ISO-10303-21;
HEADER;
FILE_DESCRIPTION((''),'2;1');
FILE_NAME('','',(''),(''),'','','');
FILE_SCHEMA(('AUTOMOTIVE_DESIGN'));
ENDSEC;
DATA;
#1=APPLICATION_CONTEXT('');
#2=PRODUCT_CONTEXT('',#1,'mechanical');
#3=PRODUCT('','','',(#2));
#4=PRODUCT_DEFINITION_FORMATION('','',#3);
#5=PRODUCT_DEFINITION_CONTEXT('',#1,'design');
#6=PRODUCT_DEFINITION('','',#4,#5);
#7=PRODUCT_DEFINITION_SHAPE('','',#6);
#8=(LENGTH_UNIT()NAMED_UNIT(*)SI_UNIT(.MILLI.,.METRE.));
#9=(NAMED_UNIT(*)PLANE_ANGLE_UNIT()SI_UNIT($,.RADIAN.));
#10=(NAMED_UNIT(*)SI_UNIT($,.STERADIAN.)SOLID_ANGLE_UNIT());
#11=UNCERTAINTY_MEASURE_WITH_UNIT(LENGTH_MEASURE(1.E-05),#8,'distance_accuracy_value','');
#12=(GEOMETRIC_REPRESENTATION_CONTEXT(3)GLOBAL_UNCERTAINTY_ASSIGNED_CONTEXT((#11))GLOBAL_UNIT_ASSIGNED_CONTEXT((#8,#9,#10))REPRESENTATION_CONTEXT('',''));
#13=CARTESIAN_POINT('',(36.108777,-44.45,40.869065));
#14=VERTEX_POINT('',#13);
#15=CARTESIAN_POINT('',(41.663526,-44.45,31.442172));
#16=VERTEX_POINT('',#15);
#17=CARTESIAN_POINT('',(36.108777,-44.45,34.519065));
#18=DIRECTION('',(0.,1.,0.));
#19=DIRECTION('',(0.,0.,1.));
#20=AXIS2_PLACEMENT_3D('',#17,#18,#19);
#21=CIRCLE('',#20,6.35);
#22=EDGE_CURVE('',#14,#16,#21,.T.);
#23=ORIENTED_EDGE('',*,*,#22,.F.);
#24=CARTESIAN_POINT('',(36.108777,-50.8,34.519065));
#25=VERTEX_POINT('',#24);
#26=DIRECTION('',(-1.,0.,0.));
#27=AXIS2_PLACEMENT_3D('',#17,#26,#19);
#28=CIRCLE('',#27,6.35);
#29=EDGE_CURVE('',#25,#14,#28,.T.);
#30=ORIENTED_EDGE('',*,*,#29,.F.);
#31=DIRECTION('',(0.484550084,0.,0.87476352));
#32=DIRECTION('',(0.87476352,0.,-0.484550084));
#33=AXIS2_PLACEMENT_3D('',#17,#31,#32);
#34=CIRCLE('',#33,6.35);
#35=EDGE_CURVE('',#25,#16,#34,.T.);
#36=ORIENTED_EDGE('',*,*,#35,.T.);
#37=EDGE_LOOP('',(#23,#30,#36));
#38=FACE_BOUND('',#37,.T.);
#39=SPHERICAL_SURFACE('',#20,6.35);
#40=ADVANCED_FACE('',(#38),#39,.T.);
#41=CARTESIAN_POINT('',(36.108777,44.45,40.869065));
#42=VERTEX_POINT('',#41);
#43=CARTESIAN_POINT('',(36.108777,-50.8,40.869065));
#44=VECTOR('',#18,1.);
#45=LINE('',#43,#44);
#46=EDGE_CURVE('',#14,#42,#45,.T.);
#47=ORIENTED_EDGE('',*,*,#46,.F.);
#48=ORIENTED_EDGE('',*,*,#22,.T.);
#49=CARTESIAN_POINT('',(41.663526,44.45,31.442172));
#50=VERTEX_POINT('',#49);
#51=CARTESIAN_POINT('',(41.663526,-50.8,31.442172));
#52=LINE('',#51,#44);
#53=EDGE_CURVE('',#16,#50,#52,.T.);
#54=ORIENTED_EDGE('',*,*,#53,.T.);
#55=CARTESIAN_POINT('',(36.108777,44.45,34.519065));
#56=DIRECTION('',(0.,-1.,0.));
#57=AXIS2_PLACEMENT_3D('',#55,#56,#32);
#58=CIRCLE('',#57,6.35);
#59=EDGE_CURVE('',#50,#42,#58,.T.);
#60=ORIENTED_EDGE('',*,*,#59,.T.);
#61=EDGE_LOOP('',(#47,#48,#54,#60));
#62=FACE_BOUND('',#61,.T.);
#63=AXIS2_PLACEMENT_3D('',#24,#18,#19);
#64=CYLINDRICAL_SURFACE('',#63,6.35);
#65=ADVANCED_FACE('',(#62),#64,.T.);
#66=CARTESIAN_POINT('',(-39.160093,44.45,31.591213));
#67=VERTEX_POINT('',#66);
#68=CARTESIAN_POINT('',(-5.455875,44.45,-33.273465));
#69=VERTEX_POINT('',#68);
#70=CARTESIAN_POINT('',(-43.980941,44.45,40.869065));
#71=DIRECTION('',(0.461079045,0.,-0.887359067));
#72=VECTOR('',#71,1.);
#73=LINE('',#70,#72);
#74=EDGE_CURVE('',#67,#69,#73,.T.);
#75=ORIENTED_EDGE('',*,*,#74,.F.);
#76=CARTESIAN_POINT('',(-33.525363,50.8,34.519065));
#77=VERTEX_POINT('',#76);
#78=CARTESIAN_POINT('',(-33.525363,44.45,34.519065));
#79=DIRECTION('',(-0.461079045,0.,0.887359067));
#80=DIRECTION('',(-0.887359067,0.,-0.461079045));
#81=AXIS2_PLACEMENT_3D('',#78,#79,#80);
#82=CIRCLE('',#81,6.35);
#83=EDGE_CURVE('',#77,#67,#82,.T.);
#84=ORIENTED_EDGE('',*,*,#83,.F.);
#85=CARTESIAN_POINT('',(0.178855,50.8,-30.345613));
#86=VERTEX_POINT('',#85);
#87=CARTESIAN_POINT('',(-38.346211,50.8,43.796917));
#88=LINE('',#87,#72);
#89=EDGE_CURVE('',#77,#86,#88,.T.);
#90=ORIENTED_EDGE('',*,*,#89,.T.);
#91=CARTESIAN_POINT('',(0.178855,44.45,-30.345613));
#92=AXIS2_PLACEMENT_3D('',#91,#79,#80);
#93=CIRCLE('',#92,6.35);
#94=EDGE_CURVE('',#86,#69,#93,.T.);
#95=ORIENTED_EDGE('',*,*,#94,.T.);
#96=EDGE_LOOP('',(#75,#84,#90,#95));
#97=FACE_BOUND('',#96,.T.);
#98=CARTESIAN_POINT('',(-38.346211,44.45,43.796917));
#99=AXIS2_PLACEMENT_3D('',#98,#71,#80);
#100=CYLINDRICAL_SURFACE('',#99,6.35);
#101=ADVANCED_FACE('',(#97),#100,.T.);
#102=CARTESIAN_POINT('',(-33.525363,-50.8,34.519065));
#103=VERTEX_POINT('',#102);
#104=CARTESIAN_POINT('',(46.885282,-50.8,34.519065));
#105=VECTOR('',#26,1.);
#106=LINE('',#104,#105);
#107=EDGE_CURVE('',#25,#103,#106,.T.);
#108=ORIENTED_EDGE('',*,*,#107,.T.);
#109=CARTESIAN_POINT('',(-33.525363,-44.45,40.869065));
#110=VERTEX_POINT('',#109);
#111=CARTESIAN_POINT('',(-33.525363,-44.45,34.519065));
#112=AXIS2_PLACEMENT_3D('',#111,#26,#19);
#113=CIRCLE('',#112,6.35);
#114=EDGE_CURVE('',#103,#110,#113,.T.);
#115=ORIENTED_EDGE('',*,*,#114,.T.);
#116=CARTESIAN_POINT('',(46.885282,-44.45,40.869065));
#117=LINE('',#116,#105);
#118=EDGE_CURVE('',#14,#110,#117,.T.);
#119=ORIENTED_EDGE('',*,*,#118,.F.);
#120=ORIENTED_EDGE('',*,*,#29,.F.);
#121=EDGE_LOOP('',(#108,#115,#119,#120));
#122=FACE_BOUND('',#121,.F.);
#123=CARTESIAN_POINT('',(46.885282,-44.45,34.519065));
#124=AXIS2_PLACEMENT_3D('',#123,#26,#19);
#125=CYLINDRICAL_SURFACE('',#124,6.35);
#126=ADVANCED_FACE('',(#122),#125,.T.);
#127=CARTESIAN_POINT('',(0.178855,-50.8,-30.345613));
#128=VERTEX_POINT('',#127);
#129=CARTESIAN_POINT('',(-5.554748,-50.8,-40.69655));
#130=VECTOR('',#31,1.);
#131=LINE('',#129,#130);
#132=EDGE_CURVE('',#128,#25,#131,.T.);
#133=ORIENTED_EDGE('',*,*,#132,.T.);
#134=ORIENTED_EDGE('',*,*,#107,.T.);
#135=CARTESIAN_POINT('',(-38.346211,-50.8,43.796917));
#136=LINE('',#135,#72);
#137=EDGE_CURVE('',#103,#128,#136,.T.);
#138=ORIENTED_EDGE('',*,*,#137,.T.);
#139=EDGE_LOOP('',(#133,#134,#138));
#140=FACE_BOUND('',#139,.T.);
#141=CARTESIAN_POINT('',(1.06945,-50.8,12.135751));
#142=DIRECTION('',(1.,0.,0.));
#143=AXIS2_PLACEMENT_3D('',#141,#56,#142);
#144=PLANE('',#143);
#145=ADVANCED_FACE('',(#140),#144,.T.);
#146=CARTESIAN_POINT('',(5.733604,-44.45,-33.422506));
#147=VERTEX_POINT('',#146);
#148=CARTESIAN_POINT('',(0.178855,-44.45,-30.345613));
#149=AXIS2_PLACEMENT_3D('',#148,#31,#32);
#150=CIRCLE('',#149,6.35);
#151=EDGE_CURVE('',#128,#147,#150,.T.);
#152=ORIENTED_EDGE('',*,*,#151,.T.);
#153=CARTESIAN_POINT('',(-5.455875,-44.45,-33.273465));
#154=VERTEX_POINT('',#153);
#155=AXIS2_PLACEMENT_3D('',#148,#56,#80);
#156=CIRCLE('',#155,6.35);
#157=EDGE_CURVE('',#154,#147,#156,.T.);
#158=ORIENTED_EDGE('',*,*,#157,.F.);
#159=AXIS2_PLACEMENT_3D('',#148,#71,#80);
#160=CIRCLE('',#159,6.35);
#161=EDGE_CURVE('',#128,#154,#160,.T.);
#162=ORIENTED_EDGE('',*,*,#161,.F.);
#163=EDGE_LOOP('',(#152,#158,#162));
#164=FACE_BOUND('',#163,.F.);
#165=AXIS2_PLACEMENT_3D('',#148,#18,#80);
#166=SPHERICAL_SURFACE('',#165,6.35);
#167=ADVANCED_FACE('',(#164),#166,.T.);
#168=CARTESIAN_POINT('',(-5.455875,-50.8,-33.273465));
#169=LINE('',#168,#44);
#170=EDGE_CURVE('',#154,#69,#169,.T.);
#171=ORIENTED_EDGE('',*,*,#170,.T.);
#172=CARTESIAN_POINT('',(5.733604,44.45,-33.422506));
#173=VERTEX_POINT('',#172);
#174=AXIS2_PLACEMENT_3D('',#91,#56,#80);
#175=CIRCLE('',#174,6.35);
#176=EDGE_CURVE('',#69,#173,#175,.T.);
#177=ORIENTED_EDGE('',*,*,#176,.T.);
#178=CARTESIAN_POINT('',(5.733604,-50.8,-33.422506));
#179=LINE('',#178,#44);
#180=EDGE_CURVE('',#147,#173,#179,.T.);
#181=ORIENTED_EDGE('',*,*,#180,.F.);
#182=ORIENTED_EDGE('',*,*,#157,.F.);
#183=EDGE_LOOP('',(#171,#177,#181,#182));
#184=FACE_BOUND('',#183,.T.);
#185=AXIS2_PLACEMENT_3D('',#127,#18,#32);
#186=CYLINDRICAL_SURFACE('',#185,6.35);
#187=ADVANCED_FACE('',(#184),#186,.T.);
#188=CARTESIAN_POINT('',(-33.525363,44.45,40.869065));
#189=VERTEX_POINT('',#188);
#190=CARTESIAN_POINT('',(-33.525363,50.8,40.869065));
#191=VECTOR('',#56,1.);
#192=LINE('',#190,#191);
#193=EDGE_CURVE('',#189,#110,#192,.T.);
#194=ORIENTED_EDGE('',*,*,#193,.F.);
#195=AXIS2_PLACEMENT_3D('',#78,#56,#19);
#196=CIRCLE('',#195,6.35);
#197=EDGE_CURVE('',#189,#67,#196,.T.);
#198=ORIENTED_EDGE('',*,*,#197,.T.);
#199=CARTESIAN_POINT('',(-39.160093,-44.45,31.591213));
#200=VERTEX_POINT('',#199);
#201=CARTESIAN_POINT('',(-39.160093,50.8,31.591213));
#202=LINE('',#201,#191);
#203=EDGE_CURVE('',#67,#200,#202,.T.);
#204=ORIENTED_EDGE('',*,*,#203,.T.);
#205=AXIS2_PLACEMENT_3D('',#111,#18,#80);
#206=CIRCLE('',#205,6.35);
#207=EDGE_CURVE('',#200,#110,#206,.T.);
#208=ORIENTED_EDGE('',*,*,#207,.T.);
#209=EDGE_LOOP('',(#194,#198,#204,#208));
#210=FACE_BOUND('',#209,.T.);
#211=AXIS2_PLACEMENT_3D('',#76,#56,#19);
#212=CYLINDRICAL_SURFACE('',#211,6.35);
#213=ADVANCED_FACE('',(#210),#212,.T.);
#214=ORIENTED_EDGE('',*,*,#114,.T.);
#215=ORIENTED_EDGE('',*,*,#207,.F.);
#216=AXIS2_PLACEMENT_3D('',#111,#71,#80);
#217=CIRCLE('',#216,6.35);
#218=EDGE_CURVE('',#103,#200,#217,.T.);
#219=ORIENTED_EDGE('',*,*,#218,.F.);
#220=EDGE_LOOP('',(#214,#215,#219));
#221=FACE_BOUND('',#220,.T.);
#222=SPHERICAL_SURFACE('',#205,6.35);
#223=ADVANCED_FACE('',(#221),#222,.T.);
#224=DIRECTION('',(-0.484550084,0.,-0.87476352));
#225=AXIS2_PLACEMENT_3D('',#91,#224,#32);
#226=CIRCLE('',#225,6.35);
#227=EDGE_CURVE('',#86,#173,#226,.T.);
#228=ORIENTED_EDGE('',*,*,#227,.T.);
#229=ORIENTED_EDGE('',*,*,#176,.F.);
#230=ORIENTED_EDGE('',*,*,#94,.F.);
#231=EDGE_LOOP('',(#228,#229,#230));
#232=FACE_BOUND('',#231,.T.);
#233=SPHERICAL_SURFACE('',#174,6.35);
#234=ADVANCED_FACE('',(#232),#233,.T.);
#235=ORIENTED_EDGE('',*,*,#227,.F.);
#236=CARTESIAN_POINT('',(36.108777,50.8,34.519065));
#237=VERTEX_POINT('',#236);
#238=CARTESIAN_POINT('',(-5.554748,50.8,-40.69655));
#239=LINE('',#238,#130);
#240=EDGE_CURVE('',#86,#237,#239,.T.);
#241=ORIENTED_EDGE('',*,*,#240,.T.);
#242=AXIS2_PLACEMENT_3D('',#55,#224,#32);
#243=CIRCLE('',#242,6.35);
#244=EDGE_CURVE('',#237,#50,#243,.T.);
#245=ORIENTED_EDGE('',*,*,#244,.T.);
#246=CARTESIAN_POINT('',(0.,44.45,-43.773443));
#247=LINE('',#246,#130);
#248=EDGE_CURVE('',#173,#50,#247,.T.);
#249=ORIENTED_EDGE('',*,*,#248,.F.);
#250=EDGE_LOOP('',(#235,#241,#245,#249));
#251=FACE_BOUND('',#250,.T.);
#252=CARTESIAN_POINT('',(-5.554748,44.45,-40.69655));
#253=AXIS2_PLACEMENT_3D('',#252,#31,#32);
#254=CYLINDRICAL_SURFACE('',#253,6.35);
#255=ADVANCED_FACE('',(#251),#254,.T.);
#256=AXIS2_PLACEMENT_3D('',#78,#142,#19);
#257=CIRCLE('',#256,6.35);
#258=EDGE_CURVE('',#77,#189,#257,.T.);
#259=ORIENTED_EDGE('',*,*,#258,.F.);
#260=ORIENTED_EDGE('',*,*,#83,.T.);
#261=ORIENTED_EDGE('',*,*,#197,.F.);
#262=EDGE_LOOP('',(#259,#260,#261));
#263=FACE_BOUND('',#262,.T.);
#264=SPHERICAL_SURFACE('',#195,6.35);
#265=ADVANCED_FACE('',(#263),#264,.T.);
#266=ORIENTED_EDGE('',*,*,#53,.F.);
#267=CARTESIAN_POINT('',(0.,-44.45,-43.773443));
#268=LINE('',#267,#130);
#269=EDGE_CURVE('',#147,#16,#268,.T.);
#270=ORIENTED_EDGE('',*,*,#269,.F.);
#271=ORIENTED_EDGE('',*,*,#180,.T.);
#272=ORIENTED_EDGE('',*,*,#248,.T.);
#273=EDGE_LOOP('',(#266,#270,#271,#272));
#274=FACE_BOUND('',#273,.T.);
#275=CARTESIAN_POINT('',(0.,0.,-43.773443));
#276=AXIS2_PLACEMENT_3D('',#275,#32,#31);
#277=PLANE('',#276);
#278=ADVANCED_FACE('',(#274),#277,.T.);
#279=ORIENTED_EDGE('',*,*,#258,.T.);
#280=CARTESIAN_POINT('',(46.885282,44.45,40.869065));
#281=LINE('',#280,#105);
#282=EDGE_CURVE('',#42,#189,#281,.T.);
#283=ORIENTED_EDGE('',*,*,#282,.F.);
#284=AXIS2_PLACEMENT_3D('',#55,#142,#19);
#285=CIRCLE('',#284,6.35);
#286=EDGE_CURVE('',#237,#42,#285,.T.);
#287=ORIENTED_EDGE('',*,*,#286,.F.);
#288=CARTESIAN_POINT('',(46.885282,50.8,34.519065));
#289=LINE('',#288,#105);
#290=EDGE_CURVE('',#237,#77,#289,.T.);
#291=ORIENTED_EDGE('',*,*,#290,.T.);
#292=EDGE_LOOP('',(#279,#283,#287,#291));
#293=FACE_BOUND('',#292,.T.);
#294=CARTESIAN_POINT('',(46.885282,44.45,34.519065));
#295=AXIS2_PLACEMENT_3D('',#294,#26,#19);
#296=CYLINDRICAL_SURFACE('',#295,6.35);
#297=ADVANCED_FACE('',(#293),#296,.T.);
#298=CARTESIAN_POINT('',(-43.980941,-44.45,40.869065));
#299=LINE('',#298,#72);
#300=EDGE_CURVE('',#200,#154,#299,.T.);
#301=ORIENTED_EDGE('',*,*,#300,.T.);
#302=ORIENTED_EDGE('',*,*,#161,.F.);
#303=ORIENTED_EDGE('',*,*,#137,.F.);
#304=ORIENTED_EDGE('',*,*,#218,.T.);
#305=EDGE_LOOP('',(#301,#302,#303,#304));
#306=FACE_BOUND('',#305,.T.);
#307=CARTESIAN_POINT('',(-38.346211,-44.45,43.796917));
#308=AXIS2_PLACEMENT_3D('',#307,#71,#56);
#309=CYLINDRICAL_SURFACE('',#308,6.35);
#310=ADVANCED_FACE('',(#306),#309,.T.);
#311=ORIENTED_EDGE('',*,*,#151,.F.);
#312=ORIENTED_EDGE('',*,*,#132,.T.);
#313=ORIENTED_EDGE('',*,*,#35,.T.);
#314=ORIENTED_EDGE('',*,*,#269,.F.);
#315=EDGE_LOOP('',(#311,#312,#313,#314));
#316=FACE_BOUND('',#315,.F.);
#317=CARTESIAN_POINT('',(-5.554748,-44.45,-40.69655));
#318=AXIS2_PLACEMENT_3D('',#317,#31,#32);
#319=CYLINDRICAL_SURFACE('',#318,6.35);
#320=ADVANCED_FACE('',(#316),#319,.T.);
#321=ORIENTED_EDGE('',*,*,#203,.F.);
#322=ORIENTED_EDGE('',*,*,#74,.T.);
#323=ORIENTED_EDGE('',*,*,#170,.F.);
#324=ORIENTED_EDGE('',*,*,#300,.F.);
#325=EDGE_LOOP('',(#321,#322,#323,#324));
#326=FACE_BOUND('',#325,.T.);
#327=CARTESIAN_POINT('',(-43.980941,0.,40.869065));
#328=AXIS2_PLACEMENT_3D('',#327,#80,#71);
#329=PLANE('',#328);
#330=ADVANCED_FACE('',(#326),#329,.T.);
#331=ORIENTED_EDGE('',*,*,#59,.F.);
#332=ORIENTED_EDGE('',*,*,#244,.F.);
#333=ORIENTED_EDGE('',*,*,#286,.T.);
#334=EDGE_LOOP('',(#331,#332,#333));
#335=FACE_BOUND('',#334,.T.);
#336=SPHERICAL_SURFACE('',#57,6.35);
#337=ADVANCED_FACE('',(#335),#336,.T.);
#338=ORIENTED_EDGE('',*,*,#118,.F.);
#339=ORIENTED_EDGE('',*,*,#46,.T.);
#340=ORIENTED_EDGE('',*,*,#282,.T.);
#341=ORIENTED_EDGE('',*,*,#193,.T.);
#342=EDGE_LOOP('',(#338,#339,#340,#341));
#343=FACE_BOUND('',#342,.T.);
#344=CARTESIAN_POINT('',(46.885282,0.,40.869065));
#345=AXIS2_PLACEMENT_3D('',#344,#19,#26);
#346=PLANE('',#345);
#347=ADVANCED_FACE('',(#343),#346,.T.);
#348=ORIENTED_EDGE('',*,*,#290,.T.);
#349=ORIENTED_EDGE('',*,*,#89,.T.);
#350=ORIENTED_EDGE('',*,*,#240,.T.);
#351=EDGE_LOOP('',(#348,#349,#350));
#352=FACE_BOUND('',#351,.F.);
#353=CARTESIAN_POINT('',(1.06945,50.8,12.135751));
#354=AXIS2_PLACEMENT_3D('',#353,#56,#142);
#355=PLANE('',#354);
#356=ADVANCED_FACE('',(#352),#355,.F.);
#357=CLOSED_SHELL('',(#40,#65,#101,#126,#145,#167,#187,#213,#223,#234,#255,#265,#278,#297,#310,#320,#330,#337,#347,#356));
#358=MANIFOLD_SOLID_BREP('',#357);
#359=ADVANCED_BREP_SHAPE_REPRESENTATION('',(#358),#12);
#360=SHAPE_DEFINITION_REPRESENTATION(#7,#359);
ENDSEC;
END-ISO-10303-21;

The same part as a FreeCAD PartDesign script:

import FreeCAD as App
import Part
import Sketcher

V = App.Vector
Q = App.Units.Quantity

doc = App.newDocument("Part")
body = doc.addObject("PartDesign::Body", "Body")

# Sketch on XZ plane
sketch1 = body.newObject("Sketcher::SketchObject", "Sketch")
sketch1.AttachmentSupport = (doc.getObject("XZ_Plane"), [""])
sketch1.MapMode = "FlatFace"
sketch1.addGeometry([
    Part.LineSegment(V(46.885282, 40.869065, 0), V(-43.980941, 40.869065, 0)),
    Part.LineSegment(V(-43.980941, 40.869065, 0), V(0, -43.773443, 0)),
    Part.LineSegment(V(0, -43.773443, 0), V(46.885282, 40.869065, 0)),
], False)
sketch1.addConstraint([
    Sketcher.Constraint("Coincident", 0, 2, 1, 1),
    Sketcher.Constraint("Coincident", 1, 2, 2, 1),
    Sketcher.Constraint("Coincident", 2, 2, 0, 1),
    Sketcher.Constraint("Horizontal", 0),
    Sketcher.Constraint("PointOnObject", 1, 2, -2),
    Sketcher.Constraint("DistanceX", 0, 2, 0, 1, Q("90.866223 mm")),
    Sketcher.Constraint("DistanceX", 0, 2, -1, 1, Q("43.980941 mm")),
    Sketcher.Constraint("Distance", 1, Q("95.386987 mm")),
    Sketcher.Constraint("DistanceY", -1, 1, 0, 2, Q("40.869065 mm")),
])
pad1 = body.newObject("PartDesign::Pad", "Pad")
pad1.Profile = sketch1
pad1.Length = Q("4 in")
pad1.Midplane = True
doc.recompute()

fillet = body.newObject("PartDesign::Fillet", "Fillet")
fillet.Base = (pad1, ["Edge1"])
fillet.UseAllEdges = True
fillet.Radius = Q("0.25 in")

doc.recompute()
